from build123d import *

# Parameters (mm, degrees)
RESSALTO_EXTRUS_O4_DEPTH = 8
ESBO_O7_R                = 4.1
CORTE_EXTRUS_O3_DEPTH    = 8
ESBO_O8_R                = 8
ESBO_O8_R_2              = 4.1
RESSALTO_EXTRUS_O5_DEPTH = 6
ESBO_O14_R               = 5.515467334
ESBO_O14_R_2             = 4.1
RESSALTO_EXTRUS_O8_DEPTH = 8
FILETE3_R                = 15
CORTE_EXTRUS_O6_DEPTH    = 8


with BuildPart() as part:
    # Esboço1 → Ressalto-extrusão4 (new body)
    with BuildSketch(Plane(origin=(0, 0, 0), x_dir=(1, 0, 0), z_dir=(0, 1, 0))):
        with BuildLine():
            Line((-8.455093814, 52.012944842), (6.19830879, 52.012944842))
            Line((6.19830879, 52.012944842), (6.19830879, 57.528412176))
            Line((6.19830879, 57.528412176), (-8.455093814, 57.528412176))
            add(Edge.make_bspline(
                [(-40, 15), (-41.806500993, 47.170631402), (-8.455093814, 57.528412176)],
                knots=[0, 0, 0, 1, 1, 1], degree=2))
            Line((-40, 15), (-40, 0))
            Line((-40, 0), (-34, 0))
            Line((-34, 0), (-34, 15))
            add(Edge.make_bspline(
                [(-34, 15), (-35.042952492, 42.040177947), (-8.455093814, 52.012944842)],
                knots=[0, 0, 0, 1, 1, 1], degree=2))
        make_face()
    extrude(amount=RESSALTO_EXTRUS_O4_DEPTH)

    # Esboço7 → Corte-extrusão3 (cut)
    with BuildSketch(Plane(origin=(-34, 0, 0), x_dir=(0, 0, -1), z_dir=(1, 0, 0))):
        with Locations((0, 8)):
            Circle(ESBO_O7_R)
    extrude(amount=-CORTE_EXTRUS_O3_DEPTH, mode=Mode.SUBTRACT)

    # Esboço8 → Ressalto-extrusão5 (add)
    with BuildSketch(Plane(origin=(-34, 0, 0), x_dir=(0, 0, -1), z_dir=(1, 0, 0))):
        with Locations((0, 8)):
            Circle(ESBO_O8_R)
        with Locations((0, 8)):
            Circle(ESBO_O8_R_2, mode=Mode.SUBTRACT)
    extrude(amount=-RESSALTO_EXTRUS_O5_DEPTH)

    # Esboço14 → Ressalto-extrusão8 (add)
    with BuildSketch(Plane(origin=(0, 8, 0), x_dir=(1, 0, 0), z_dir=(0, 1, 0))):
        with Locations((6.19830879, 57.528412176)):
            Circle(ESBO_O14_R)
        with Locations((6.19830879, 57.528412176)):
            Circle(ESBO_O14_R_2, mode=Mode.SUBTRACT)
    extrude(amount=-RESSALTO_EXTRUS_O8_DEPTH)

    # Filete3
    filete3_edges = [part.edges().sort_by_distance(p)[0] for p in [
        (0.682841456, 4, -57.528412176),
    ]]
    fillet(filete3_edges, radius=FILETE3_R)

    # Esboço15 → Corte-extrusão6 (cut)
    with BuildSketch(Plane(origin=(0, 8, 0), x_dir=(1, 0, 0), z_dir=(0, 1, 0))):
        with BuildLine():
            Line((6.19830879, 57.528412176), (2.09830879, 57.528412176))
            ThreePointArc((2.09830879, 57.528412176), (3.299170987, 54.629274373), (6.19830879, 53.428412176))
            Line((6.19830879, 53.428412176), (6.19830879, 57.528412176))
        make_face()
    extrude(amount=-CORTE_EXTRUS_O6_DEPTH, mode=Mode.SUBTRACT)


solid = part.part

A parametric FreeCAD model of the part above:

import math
import FreeCAD as App
import Part
import Sketcher

V = App.Vector
Q = App.Units.Quantity


def edges_at(feature, points):
    """Names of the edges that pass closest to the given points."""
    edges = feature.Shape.Edges
    near = lambda p: min(range(len(edges)), key=lambda i: edges[i].distToShape(Part.Vertex(*p))[0])
    return sorted({f"Edge{near(p) + 1}" for p in points})

doc = App.newDocument("Part")
body = doc.addObject("PartDesign::Body", "Body")

sketch1 = body.newObject("Sketcher::SketchObject", "Sketch")
sketch1.AttachmentSupport = (doc.getObject("XZ_Plane"), [""])
sketch1.MapMode = "FlatFace"
sketch1.addGeometry(Part.LineSegment(V(-8.455094, -52.012945, 0), V(6.198309, -52.012945, 0)), False)
sketch1.addGeometry(Part.LineSegment(V(6.198309, -52.012945, 0), V(6.198309, -57.528412, 0)), False)
sketch1.addGeometry(Part.LineSegment(V(6.198309, -57.528412, 0), V(-8.455094, -57.528412, 0)), False)
sketch1.addGeometry(Part.BSplineCurve([V(-40, -15, 0), V(-41.806501, -47.170631, 0), V(-8.455094, -57.528412, 0)], [3, 3], [0, 1], False, 2, [1, 1, 1], False), False)
sketch1.addGeometry(Part.LineSegment(V(-40, -15, 0), V(-40, 0, 0)), False)
sketch1.addGeometry(Part.LineSegment(V(-40, 0, 0), V(-34, 0, 0)), False)
sketch1.addGeometry(Part.LineSegment(V(-34, 0, 0), V(-34, -15, 0)), False)
sketch1.addGeometry(Part.BSplineCurve([V(-34, -15, 0), V(-35.042952, -42.040178, 0), V(-8.455094, -52.012945, 0)], [3, 3], [0, 1], False, 2, [1, 1, 1], False), False)
sketch1.addConstraint(Sketcher.Constraint("Block", 3))
sketch1.addConstraint(Sketcher.Constraint("Block", 7))
sketch1.addConstraint(Sketcher.Constraint("Coincident", 0, 2, 1, 1))
sketch1.addConstraint(Sketcher.Constraint("Coincident", 1, 2, 2, 1))
sketch1.addConstraint(Sketcher.Constraint("Coincident", 2, 2, 3, 2))
sketch1.addConstraint(Sketcher.Constraint("Coincident", 3, 1, 4, 1))
sketch1.addConstraint(Sketcher.Constraint("Coincident", 4, 2, 5, 1))
sketch1.addConstraint(Sketcher.Constraint("Coincident", 5, 2, 6, 1))
sketch1.addConstraint(Sketcher.Constraint("Coincident", 6, 2, 7, 1))
sketch1.addConstraint(Sketcher.Constraint("Coincident", 7, 2, 0, 1))
sketch1.addConstraint(Sketcher.Constraint("Horizontal", 0))
sketch1.addConstraint(Sketcher.Constraint("Vertical", 1))
sketch1.addConstraint(Sketcher.Constraint("Horizontal", 2))
sketch1.addConstraint(Sketcher.Constraint("Vertical", 4))
sketch1.addConstraint(Sketcher.Constraint("Horizontal", 5))
sketch1.addConstraint(Sketcher.Constraint("Vertical", 6))
sketch1.addConstraint(Sketcher.Constraint("PointOnObject", 4, 2, -1))
sketch1.addConstraint(Sketcher.Constraint("DistanceX", 0, 1, 0, 2, Q("14.653403 mm")))
pad1 = body.newObject("PartDesign::Pad", "Pad")
pad1.Profile = sketch1
pad1.Length = 8
pad1.Reversed = True

sketch2 = body.newObject("Sketcher::SketchObject", "Sketch001")
sketch2.AttachmentSupport = (doc.getObject("YZ_Plane"), [""])
sketch2.MapMode = "FlatFace"
sketch2.AttachmentOffset = App.Placement(V(0, 0, -34), App.Rotation())
sketch2.addGeometry(Part.Circle(V(8, 0, 0), V(0, 0, 1), 4.1), False)
sketch2.addConstraint(Sketcher.Constraint("PointOnObject", 0, 3, -1))
sketch2.addConstraint(Sketcher.Constraint("Diameter", 0, Q("8.2 mm")))
sketch2.addConstraint(Sketcher.Constraint("DistanceX", -1, 1, 0, 3, Q("8 mm")))
pocket1 = body.newObject("PartDesign::Pocket", "Pocket")
pocket1.Profile = sketch2
pocket1.Length = 8

sketch3 = body.newObject("Sketcher::SketchObject", "Sketch002")
sketch3.AttachmentSupport = (doc.getObject("YZ_Plane"), [""])
sketch3.MapMode = "FlatFace"
sketch3.AttachmentOffset = App.Placement(V(0, 0, -34), App.Rotation())
sketch3.addGeometry(Part.Circle(V(8, 0, 0), V(0, 0, 1), 8), False)
sketch3.addGeometry(Part.Circle(V(8, 0, 0), V(0, 0, 1), 4.1), False)
sketch3.addConstraint(Sketcher.Constraint("Coincident", 1, 3, 0, 3))
sketch3.addConstraint(Sketcher.Constraint("PointOnObject", 0, 3, -1))
sketch3.addConstraint(Sketcher.Constraint("Diameter", 0, Q("16 mm")))
sketch3.addConstraint(Sketcher.Constraint("Diameter", 1, Q("8.2 mm")))
sketch3.addConstraint(Sketcher.Constraint("DistanceX", -1, 1, 0, 3, Q("8 mm")))
pad2 = body.newObject("PartDesign::Pad", "Pad001")
pad2.Profile = sketch3
pad2.Length = 6
pad2.Reversed = True

sketch4 = body.newObject("Sketcher::SketchObject", "Sketch003")
sketch4.AttachmentSupport = (doc.getObject("XZ_Plane"), [""])
sketch4.MapMode = "FlatFace"
sketch4.AttachmentOffset = App.Placement(V(0, 0, -8), App.Rotation())
sketch4.addGeometry(Part.Circle(V(6.2, -57.5, 0), V(0, 0, 1), 5.5), False)
sketch4.addGeometry(Part.Circle(V(6.2, -57.5, 0), V(0, 0, 1), 4.1), False)
sketch4.addConstraint(Sketcher.Constraint("Coincident", 1, 3, 0, 3))
sketch4.addConstraint(Sketcher.Constraint("Diameter", 1, Q("8.2 mm")))
sketch4.addConstraint(Sketcher.Constraint("Diameter", 0, Q("11.030935 mm")))
sketch4.addConstraint(Sketcher.Constraint("DistanceX", -1, 1, 0, 3, Q("6.198309 mm")))
sketch4.addConstraint(Sketcher.Constraint("DistanceY", 0, 3, -1, 1, Q("57.528412 mm")))
pad3 = body.newObject("PartDesign::Pad", "Pad002")
pad3.Profile = sketch4
pad3.Length = 8
doc.recompute()

fillet = body.newObject("PartDesign::Fillet", "Fillet")
fillet.Base = (pad3, edges_at(pad3, [(0.683, 4, -57.528)]))
fillet.Radius = 15

sketch5 = body.newObject("Sketcher::SketchObject", "Sketch004")
sketch5.AttachmentSupport = (doc.getObject("XZ_Plane"), [""])
sketch5.MapMode = "FlatFace"
sketch5.AttachmentOffset = App.Placement(V(0, 0, -8), App.Rotation())
sketch5.addGeometry(Part.LineSegment(V(6.2, -57.5, 0), V(2.1, -57.5, 0)), False)
sketch5.addGeometry(Part.ArcOfCircle(Part.Circle(V(6.2, -57.5, 0), V(0, 0, 1), 4.1), math.radians(90), math.radians(180)), False)
sketch5.addGeometry(Part.LineSegment(V(6.2, -53.4, 0), V(6.2, -57.5, 0)), False)
sketch5.addConstraint(Sketcher.Constraint("Coincident", 0, 2, 1, 2))
sketch5.addConstraint(Sketcher.Constraint("Coincident", 1, 1, 2, 1))
sketch5.addConstraint(Sketcher.Constraint("Coincident", 2, 2, 0, 1))
sketch5.addConstraint(Sketcher.Constraint("Horizontal", 0))
sketch5.addConstraint(Sketcher.Constraint("Vertical", 2))
sketch5.addConstraint(Sketcher.Constraint("Coincident", 2, 2, 1, 3))
sketch5.addConstraint(Sketcher.Constraint("Radius", 1, Q("4.1 mm")))
sketch5.addConstraint(Sketcher.Constraint("DistanceX", -1, 1, 1, 3, Q("6.198309 mm")))
sketch5.addConstraint(Sketcher.Constraint("DistanceY", 1, 3, -1, 1, Q("57.528412 mm")))
pocket2 = body.newObject("PartDesign::Pocket", "Pocket001")
pocket2.Profile = sketch5
pocket2.Length = 8
pocket2.Reversed = True

doc.recompute()
